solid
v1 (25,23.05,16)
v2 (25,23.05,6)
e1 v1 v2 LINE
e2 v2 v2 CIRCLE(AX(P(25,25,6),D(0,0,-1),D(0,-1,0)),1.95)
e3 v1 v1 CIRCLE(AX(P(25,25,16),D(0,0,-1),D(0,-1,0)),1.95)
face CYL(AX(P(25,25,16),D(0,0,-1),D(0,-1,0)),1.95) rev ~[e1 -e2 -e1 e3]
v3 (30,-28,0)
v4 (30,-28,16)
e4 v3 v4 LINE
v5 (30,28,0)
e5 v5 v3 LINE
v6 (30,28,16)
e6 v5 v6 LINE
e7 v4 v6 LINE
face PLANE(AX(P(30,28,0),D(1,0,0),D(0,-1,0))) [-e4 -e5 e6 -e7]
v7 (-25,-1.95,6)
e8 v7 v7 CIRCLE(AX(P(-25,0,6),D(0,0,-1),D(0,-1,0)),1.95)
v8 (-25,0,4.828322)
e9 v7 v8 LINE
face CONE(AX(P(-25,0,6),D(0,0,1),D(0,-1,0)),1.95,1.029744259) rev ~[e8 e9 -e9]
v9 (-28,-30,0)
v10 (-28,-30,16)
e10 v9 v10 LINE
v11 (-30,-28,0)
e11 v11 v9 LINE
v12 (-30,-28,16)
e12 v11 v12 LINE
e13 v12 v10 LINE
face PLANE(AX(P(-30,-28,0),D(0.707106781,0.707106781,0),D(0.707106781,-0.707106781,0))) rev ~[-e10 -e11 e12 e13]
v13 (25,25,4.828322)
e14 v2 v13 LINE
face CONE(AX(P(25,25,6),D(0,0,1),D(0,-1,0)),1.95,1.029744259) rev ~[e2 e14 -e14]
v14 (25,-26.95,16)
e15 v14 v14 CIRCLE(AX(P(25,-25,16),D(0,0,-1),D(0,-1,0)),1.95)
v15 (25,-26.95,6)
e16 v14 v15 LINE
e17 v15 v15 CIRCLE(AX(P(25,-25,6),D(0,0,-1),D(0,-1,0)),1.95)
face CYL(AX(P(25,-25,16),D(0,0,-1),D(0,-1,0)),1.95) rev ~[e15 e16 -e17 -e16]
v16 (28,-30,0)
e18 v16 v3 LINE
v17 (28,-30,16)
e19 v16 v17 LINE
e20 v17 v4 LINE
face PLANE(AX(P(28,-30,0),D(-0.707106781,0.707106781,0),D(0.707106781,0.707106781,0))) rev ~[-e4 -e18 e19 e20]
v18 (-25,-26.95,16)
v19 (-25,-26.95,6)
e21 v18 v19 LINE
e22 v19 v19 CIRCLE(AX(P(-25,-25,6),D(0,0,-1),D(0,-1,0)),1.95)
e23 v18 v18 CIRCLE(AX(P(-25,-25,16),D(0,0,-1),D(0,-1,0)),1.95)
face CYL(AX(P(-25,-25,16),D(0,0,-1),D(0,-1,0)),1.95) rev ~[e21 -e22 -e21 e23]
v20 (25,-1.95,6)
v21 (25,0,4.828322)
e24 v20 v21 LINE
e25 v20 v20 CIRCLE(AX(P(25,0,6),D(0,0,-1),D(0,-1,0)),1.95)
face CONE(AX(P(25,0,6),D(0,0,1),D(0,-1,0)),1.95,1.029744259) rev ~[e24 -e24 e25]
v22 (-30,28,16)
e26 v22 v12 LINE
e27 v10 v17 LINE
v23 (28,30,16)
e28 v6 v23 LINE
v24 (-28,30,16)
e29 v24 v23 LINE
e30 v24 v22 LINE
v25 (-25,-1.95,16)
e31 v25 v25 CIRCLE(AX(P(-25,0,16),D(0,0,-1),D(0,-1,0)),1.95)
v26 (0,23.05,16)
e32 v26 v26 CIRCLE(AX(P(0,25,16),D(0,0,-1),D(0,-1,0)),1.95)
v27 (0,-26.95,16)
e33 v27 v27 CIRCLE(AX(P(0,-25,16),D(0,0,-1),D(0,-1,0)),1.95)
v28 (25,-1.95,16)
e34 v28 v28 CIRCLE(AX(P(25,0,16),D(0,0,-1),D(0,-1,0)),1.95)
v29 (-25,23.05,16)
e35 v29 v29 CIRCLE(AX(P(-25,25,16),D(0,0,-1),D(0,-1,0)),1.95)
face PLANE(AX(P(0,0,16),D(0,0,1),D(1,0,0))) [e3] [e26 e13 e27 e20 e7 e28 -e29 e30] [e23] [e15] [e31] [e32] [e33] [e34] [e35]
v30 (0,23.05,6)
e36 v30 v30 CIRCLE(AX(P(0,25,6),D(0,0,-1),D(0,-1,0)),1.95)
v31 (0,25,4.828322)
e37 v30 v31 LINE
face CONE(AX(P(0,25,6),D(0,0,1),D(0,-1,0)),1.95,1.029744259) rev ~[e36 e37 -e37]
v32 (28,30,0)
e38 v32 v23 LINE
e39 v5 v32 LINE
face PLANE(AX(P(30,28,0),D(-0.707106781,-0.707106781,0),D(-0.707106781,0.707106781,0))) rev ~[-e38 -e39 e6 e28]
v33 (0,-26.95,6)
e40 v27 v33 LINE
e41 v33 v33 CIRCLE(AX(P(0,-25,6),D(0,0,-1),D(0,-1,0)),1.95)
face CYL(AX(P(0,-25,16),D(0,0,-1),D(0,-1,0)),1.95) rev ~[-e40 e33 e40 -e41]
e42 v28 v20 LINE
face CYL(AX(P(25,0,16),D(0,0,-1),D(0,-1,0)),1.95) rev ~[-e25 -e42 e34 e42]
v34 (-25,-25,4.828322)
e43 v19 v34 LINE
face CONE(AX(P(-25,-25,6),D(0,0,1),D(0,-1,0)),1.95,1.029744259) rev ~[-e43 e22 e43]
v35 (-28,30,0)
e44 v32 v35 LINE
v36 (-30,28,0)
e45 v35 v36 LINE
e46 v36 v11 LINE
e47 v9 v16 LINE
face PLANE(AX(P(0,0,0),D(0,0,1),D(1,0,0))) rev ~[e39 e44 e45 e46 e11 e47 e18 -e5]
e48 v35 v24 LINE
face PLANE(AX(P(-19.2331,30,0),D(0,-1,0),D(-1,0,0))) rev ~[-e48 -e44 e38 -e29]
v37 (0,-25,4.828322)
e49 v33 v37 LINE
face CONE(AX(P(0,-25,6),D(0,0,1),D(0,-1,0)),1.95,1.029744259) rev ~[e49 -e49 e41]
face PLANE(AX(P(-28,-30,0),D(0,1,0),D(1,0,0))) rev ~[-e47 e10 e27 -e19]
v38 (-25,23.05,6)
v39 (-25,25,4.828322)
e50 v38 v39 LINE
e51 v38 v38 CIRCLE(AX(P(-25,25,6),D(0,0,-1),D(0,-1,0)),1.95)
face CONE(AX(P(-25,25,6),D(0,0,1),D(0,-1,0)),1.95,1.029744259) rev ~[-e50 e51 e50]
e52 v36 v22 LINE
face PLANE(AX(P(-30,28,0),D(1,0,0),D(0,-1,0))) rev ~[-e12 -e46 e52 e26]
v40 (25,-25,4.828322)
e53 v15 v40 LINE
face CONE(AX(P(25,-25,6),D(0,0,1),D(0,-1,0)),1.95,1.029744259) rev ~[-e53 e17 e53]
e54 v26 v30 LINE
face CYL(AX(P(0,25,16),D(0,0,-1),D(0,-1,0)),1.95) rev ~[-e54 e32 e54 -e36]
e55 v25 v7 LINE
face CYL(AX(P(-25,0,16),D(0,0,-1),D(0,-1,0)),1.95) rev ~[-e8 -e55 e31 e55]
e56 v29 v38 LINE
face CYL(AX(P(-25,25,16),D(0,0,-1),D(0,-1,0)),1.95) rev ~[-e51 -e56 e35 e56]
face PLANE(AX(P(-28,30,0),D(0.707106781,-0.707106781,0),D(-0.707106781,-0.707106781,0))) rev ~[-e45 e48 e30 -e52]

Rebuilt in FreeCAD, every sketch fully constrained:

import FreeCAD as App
import Part
import Sketcher
Q = App.Units.Quantity

doc = App.newDocument("Part")
body = doc.addObject("PartDesign::Body", "Body")

sketch1 = body.newObject("Sketcher::SketchObject", "Sketch")
sketch1.AttachmentSupport = (doc.getObject("XY_Plane"), [""])
sketch1.MapMode = "FlatFace"
sketch1.addGeometry(Part.LineSegment(App.Vector(28, 30, 0), App.Vector(-28, 30, 0)), False)
sketch1.addGeometry(Part.LineSegment(App.Vector(-28, 30, 0), App.Vector(-30, 28, 0)), False)
sketch1.addGeometry(Part.LineSegment(App.Vector(-30, 28, 0), App.Vector(-30, -28, 0)), False)
sketch1.addGeometry(Part.LineSegment(App.Vector(-30, -28, 0), App.Vector(-28, -30, 0)), False)
sketch1.addGeometry(Part.LineSegment(App.Vector(-28, -30, 0), App.Vector(28, -30, 0)), False)
sketch1.addGeometry(Part.LineSegment(App.Vector(28, -30, 0), App.Vector(30, -28, 0)), False)
sketch1.addGeometry(Part.LineSegment(App.Vector(30, -28, 0), App.Vector(30, 28, 0)), False)
sketch1.addGeometry(Part.LineSegment(App.Vector(30, 28, 0), App.Vector(28, 30, 0)), False)
sketch1.addConstraint(Sketcher.Constraint("Coincident", 0, 2, 1, 1))
sketch1.addConstraint(Sketcher.Constraint("Coincident", 1, 2, 2, 1))
sketch1.addConstraint(Sketcher.Constraint("Coincident", 2, 2, 3, 1))
sketch1.addConstraint(Sketcher.Constraint("Coincident", 3, 2, 4, 1))
sketch1.addConstraint(Sketcher.Constraint("Coincident", 4, 2, 5, 1))
sketch1.addConstraint(Sketcher.Constraint("Coincident", 5, 2, 6, 1))
sketch1.addConstraint(Sketcher.Constraint("Coincident", 6, 2, 7, 1))
sketch1.addConstraint(Sketcher.Constraint("Coincident", 7, 2, 0, 1))
sketch1.addConstraint(Sketcher.Constraint("Horizontal", 0))
sketch1.addConstraint(Sketcher.Constraint("Vertical", 2))
sketch1.addConstraint(Sketcher.Constraint("Horizontal", 4))
sketch1.addConstraint(Sketcher.Constraint("Vertical", 6))
sketch1.addConstraint(Sketcher.Constraint("Symmetric", 0, 2, 4, 2, -1, 1))
sketch1.addConstraint(Sketcher.Constraint("Symmetric", 1, 2, 5, 2, -1, 1))
sketch1.addConstraint(Sketcher.Constraint("Perpendicular", 1, 3))
sketch1.addConstraint(Sketcher.Constraint("Perpendicular", 5, 7))
sketch1.addConstraint(Sketcher.Constraint("Horizontal", 2, 2, 5, 2))
sketch1.addConstraint(Sketcher.Constraint("Horizontal", 1, 2, 6, 2))
sketch1.addConstraint(Sketcher.Constraint("Vertical", 0, 2, 3, 2))
sketch1.addConstraint(Sketcher.Constraint("Equal", 4, 2))
sketch1.addConstraint(Sketcher.Constraint("DistanceX", 0, 2, 0, 1, Q("56 mm")))
sketch1.addConstraint(Sketcher.Constraint("DistanceY", -1, 1, 0, 2, Q("30 mm")))
pad1 = body.newObject("PartDesign::Pad", "Pad")
pad1.Profile = sketch1
pad1.Length = 16

sketch2 = body.newObject("Sketcher::SketchObject", "Sketch001")
sketch2.AttachmentSupport = (doc.getObject("XY_Plane"), [""])
sketch2.MapMode = "FlatFace"
sketch2.AttachmentOffset = App.Placement(App.Vector(0, 0, 16), App.Rotation())
sketch2.addGeometry(Part.Circle(App.Vector(25, 25, 0), App.Vector(0, 0, 1), 1.95), False)
sketch2.addGeometry(Part.Circle(App.Vector(25, -25, 0), App.Vector(0, 0, 1), 1.95), False)
sketch2.addGeometry(Part.Circle(App.Vector(-25, -25, 0), App.Vector(0, 0, 1), 1.95), False)
sketch2.addGeometry(Part.Circle(App.Vector(-25, 25, 0), App.Vector(0, 0, 1), 1.95), False)
sketch2.addGeometry(Part.Circle(App.Vector(-25, 0, 0), App.Vector(0, 0, 1), 1.95), False)
sketch2.addGeometry(Part.Circle(App.Vector(25, 0, 0), App.Vector(0, 0, 1), 1.95), False)
sketch2.addGeometry(Part.Circle(App.Vector(0, 25, 0), App.Vector(0, 0, 1), 1.95), False)
sketch2.addGeometry(Part.Circle(App.Vector(0, -25, 0), App.Vector(0, 0, 1), 1.95), False)
sketch2.addConstraint(Sketcher.Constraint("Equal", 0, 1))
sketch2.addConstraint(Sketcher.Constraint("Equal", 1, 2))
sketch2.addConstraint(Sketcher.Constraint("Equal", 2, 3))
sketch2.addConstraint(Sketcher.Constraint("Equal", 3, 4))
sketch2.addConstraint(Sketcher.Constraint("Equal", 4, 5))
sketch2.addConstraint(Sketcher.Constraint("Equal", 5, 6))
sketch2.addConstraint(Sketcher.Constraint("Equal", 6, 7))
sketch2.addConstraint(Sketcher.Constraint("Symmetric", 0, 3, 2, 3, -1, 1))
sketch2.addConstraint(Sketcher.Constraint("Symmetric", 1, 3, 3, 3, -1, 1))
sketch2.addConstraint(Sketcher.Constraint("Symmetric", 4, 3, 5, 3, -1, 1))
sketch2.addConstraint(Sketcher.Constraint("Symmetric", 6, 3, 7, 3, -1, 1))
sketch2.addConstraint(Sketcher.Constraint("Symmetric", 1, 3, 2, 3, -2))
sketch2.addConstraint(Sketcher.Constraint("PointOnObject", 4, 3, -1))
sketch2.addConstraint(Sketcher.Constraint("PointOnObject", 6, 3, -2))
sketch2.addConstraint(Sketcher.Constraint("Horizontal", 3, 3, 6, 3))
sketch2.addConstraint(Sketcher.Constraint("Vertical", 3, 3, 4, 3))
sketch2.addConstraint(Sketcher.Constraint("Diameter", 0, Q("3.9 mm")))
sketch2.addConstraint(Sketcher.Constraint("DistanceX", -1, 1, 0, 3, Q("25 mm")))
sketch2.addConstraint(Sketcher.Constraint("DistanceY", -1, 1, 0, 3, Q("25 mm")))
doc.recompute()
hole = body.newObject("PartDesign::Hole", "Hole")
hole.Profile = sketch2
hole.ThreadType = "None"
hole.Diameter = 3.9
hole.DepthType = "Dimension"
hole.Depth = 10
hole.DrillPoint = "Angled"
hole.DrillPointAngle = 118

doc.recompute()
